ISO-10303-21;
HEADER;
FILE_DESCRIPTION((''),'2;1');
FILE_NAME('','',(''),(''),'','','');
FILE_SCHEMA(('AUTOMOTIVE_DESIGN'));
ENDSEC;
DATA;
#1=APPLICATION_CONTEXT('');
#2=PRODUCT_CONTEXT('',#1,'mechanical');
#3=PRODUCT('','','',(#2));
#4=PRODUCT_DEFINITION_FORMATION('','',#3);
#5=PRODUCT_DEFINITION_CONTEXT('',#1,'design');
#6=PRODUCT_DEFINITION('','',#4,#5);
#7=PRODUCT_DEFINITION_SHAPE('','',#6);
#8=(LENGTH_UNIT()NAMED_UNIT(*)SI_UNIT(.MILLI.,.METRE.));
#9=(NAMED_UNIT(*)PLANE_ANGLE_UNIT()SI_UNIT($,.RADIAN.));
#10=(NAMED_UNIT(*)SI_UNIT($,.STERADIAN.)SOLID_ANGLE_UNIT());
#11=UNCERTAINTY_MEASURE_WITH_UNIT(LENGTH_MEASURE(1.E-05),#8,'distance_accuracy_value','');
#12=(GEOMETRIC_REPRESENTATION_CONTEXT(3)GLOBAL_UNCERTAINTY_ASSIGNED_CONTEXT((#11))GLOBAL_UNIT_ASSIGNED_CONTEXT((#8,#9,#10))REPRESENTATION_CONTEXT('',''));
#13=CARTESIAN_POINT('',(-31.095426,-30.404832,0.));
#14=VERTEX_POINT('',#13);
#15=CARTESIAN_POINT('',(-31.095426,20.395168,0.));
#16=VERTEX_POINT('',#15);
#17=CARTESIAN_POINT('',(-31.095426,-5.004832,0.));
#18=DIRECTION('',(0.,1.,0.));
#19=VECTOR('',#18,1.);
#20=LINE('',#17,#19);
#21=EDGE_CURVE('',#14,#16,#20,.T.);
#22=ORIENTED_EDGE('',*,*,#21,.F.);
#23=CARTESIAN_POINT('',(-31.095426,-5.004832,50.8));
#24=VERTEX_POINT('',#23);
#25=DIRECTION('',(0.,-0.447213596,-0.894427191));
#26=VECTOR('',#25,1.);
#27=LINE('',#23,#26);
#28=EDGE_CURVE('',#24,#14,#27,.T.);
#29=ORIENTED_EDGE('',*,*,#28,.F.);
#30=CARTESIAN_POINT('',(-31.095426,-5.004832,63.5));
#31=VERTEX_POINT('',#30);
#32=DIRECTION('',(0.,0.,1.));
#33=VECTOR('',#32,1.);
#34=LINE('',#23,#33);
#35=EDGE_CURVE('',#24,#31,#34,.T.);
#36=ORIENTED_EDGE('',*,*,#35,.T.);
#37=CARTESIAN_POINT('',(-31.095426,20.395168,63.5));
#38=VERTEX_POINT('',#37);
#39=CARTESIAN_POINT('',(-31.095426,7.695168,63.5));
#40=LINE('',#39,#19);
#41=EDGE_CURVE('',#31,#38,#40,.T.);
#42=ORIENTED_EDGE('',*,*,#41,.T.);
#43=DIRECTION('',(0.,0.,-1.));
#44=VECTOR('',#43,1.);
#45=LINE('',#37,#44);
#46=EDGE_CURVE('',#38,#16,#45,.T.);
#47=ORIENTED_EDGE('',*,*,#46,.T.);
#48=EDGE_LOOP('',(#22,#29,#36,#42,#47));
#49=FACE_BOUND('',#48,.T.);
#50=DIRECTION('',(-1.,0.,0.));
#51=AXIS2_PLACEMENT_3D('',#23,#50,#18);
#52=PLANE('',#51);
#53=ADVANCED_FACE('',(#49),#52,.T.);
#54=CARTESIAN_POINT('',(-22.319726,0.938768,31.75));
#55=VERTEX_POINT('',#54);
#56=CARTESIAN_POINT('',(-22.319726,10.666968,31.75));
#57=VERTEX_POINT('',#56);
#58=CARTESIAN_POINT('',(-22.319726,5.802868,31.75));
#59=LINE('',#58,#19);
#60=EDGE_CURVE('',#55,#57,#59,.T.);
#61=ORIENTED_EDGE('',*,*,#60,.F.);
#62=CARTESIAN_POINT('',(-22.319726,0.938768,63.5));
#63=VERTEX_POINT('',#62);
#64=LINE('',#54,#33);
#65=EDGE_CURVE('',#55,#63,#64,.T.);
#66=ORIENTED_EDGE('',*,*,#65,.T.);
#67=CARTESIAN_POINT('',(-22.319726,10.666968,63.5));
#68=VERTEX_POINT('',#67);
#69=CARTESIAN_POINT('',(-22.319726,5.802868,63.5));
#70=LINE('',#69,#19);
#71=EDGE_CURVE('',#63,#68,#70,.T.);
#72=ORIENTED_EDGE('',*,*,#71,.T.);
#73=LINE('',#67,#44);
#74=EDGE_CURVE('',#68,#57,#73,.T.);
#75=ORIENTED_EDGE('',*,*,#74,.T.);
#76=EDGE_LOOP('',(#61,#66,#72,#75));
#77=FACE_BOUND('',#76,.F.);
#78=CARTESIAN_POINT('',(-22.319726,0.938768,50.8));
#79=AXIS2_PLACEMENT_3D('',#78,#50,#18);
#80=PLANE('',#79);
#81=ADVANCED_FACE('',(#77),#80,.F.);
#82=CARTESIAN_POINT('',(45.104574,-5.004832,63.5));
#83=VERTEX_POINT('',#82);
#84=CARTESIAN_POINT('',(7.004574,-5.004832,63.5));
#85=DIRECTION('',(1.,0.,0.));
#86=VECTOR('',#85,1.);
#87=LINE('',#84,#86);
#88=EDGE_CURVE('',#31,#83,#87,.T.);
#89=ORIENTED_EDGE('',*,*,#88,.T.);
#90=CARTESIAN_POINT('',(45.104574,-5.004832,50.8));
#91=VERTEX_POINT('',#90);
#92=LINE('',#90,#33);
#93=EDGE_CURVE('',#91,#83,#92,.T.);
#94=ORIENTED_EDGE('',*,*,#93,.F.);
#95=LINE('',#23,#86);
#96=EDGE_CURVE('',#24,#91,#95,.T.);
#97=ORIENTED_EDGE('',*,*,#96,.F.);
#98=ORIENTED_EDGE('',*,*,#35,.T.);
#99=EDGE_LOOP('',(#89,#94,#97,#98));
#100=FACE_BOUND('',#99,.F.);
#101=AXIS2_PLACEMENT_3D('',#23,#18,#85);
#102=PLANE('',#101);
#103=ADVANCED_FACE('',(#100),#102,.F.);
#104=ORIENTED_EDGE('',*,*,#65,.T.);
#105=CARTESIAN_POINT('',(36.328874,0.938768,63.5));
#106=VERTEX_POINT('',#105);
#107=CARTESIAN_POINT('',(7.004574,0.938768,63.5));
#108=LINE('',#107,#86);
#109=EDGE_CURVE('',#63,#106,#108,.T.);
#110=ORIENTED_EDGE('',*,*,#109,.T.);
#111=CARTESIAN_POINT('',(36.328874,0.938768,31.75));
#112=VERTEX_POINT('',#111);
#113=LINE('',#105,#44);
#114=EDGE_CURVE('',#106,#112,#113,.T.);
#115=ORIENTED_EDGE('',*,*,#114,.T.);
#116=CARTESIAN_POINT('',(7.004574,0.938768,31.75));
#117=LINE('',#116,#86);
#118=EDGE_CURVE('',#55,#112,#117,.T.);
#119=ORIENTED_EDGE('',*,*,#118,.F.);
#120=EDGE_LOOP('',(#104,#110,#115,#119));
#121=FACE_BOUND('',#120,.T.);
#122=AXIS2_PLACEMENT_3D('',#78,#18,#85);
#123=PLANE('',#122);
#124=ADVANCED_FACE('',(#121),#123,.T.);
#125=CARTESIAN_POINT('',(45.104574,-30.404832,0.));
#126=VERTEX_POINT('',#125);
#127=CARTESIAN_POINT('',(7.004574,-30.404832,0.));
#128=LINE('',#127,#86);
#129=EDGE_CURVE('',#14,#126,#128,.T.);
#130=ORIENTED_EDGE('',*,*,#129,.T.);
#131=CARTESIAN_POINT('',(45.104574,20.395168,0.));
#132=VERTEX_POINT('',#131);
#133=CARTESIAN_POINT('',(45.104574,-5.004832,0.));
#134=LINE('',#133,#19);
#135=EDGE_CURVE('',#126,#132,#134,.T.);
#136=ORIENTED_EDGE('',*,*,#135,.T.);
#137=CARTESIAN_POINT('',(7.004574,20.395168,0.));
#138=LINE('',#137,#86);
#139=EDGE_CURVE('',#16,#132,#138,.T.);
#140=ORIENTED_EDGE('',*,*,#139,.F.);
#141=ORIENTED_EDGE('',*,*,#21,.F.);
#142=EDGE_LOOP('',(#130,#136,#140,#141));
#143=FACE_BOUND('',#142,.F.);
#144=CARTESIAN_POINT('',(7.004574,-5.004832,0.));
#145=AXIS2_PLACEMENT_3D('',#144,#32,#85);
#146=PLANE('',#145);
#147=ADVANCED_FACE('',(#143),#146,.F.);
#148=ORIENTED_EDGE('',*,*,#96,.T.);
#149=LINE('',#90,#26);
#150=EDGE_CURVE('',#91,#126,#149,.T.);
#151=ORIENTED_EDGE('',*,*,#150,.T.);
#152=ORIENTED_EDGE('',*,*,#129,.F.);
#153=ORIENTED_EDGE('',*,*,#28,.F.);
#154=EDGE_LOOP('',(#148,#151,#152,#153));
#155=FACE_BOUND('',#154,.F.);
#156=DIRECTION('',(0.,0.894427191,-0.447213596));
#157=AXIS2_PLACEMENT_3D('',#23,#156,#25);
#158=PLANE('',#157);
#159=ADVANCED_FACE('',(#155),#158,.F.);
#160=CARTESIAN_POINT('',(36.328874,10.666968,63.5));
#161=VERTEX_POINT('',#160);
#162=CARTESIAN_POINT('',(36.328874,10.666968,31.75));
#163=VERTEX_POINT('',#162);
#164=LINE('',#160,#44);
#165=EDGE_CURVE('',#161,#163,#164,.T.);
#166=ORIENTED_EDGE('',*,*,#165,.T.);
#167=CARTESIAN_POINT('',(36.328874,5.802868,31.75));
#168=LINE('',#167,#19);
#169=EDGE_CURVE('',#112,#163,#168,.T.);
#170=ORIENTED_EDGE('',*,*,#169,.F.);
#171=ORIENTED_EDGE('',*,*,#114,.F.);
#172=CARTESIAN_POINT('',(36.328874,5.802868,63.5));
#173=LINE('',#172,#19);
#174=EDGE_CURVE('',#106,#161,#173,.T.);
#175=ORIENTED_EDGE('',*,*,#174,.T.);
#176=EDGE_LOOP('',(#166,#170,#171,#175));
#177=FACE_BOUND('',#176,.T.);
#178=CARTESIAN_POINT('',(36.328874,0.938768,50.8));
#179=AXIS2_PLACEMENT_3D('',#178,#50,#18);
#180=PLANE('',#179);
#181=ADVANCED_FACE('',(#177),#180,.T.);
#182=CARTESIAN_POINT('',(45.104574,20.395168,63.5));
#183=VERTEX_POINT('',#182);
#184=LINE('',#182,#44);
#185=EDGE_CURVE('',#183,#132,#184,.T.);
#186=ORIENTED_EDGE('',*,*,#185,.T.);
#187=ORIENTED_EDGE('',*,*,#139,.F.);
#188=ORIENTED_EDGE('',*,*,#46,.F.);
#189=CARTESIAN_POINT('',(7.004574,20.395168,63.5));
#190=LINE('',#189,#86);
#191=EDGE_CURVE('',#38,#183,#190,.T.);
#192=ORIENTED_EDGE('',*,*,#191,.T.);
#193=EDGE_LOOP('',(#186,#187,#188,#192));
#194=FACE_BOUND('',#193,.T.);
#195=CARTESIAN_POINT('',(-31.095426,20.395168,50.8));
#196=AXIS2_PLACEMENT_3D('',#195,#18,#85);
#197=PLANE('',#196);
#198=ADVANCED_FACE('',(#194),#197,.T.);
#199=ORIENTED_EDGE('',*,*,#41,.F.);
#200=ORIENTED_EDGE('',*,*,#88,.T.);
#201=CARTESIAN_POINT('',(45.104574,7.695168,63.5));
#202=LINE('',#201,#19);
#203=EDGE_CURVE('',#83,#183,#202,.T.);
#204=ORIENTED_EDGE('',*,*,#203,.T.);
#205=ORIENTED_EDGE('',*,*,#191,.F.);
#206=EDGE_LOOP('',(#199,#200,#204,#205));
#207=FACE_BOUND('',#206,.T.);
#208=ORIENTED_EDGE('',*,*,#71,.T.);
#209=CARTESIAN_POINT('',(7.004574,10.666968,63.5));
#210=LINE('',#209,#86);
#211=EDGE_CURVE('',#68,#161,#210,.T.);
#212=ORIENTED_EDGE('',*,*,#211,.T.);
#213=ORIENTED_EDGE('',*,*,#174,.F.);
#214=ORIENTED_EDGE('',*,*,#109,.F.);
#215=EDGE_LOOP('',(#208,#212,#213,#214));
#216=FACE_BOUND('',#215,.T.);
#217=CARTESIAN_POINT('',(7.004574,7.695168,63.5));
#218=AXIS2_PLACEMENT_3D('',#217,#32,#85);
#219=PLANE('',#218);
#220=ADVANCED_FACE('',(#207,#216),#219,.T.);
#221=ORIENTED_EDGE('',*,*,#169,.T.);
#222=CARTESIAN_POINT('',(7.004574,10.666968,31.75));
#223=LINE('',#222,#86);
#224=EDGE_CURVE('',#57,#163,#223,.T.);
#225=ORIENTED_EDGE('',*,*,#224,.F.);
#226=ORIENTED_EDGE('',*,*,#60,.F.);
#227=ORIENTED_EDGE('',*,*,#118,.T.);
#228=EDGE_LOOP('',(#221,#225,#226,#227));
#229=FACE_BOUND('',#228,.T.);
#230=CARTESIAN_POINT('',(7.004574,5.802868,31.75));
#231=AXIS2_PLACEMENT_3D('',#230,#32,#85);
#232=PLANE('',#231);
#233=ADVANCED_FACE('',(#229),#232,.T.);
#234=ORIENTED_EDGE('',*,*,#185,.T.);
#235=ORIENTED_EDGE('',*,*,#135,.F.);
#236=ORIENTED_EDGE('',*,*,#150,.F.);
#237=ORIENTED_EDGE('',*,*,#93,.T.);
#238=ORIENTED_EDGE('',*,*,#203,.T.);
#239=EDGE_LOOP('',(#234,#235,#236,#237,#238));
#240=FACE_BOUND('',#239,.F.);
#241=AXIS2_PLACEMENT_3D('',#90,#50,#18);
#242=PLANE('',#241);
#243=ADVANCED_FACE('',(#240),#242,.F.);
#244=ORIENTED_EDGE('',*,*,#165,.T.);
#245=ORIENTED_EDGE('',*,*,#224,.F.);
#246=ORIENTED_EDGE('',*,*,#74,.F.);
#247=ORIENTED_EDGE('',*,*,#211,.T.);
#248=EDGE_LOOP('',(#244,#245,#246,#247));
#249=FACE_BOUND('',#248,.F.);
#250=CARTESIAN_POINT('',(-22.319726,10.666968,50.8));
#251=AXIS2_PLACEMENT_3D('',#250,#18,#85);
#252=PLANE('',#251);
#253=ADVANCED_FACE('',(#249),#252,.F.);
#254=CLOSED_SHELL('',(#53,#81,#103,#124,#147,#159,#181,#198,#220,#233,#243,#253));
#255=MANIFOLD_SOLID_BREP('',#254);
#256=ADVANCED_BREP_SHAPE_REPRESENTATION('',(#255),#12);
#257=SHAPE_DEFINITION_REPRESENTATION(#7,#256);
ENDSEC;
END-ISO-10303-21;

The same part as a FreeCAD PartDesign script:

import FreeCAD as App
import Part
import Sketcher

V = App.Vector
Q = App.Units.Quantity


def add_polygon(sketch, points):
    """Adds a closed chain of lines whose ends are joined by coincident constraints."""
    first, n = sketch.GeometryCount, len(points)
    for a, b in zip(points, points[1:] + points[:1]):
        sketch.addGeometry(Part.LineSegment(App.Vector(*a, 0), App.Vector(*b, 0)), False)
    for i in range(n):
        sketch.addConstraint(Sketcher.Constraint("Coincident", first + i, 2, first + (i + 1) % n, 1))

doc = App.newDocument("Part")
body = doc.addObject("PartDesign::Body", "Body")

sketch1 = body.newObject("Sketcher::SketchObject", "Sketch")
sketch1.AttachmentSupport = (doc.getObject("XY_Plane"), [""])
sketch1.MapMode = "FlatFace"
add_polygon(sketch1, [(-31, 20), (-31, -30), (45, -30), (45, 20)])
sketch1.addConstraint(Sketcher.Constraint("Vertical", 0))
sketch1.addConstraint(Sketcher.Constraint("Horizontal", 1))
sketch1.addConstraint(Sketcher.Constraint("Vertical", 2))
sketch1.addConstraint(Sketcher.Constraint("Horizontal", 3))
sketch1.addConstraint(Sketcher.Constraint("DistanceX", 1, 1, 1, 2, Q("3 in")))
sketch1.addConstraint(Sketcher.Constraint("DistanceY", 0, 2, 0, 1, Q("2 in")))
sketch1.addConstraint(Sketcher.Constraint("DistanceY", 0, 2, -1, 1, Q("30.404832 mm")))
sketch1.addConstraint(Sketcher.Constraint("DistanceX", 0, 2, -1, 1, Q("31.095426 mm")))
pad1 = body.newObject("PartDesign::Pad", "Pad")
pad1.Profile = sketch1
pad1.Length = Q("2 in")

sketch2 = body.newObject("Sketcher::SketchObject", "Sketch001")
sketch2.AttachmentSupport = (doc.getObject("XY_Plane"), [""])
sketch2.MapMode = "FlatFace"
sketch2.AttachmentOffset = App.Placement(V(0, 0, 2 * 25.4), App.Rotation())
add_polygon(sketch2, [(-22, 11), (-22, 1), (36, 1), (36, 11)])
sketch2.addConstraint(Sketcher.Constraint("Vertical", 0))
sketch2.addConstraint(Sketcher.Constraint("Horizontal", 1))
sketch2.addConstraint(Sketcher.Constraint("Vertical", 2))
sketch2.addConstraint(Sketcher.Constraint("Horizontal", 3))
sketch2.addConstraint(Sketcher.Constraint("DistanceX", 1, 1, 1, 2, Q("2.309 in")))
sketch2.addConstraint(Sketcher.Constraint("DistanceY", 0, 2, 0, 1, Q("0.383 in")))
sketch2.addConstraint(Sketcher.Constraint("DistanceY", -1, 1, 0, 2, Q("0.938768 mm")))
sketch2.addConstraint(Sketcher.Constraint("DistanceX", 0, 2, -1, 1, Q("22.319726 mm")))
pocket1 = body.newObject("PartDesign::Pocket", "Pocket")
pocket1.Profile = sketch2
pocket1.Length = Q("0.75 in")

sketch3 = body.newObject("Sketcher::SketchObject", "Sketch002")
sketch3.AttachmentSupport = (doc.getObject("YZ_Plane"), [""])
sketch3.MapMode = "FlatFace"
sketch3.AttachmentOffset = App.Placement(V(0, 0, -31.095426), App.Rotation())
add_polygon(sketch3, [(-30, 51), (-5, 51), (-30, 0)])
sketch3.addConstraint(Sketcher.Constraint("Horizontal", 0))
sketch3.addConstraint(Sketcher.Constraint("Vertical", 2))
sketch3.addConstraint(Sketcher.Constraint("PointOnObject", 1, 2, -1))
sketch3.addConstraint(Sketcher.Constraint("DistanceX", 0, 1, 0, 2, Q("1 in")))
sketch3.addConstraint(Sketcher.Constraint("DistanceY", 2, 1, 2, 2, Q("2 in")))
sketch3.addConstraint(Sketcher.Constraint("DistanceX", 1, 2, -1, 1, Q("30.404832 mm")))
pocket2 = body.newObject("PartDesign::Pocket", "Pocket001")
pocket2.Profile = sketch3
pocket2.Length = Q("3 in")
pocket2.Reversed = True

sketch4 = body.newObject("Sketcher::SketchObject", "Sketch003")
sketch4.AttachmentSupport = (doc.getObject("XY_Plane"), [""])
sketch4.MapMode = "FlatFace"
sketch4.AttachmentOffset = App.Placement(V(0, 0, 2 * 25.4), App.Rotation())
add_polygon(sketch4, [(-31, 20), (-31, -5), (45, -5), (45, 20)])
add_polygon(sketch4, [(36, 1), (-22, 1), (-22, 11), (36, 11)])
sketch4.addConstraint(Sketcher.Constraint("Vertical", 0))
sketch4.addConstraint(Sketcher.Constraint("Horizontal", 1))
sketch4.addConstraint(Sketcher.Constraint("Vertical", 2))
sketch4.addConstraint(Sketcher.Constraint("Horizontal", 3))
sketch4.addConstraint(Sketcher.Constraint("Horizontal", 4))
sketch4.addConstraint(Sketcher.Constraint("Vertical", 5))
sketch4.addConstraint(Sketcher.Constraint("Horizontal", 6))
sketch4.addConstraint(Sketcher.Constraint("Vertical", 7))
sketch4.addConstraint(Sketcher.Constraint("DistanceX", 1, 1, 1, 2, Q("3 in")))
sketch4.addConstraint(Sketcher.Constraint("DistanceY", 0, 2, 0, 1, Q("1 in")))
sketch4.addConstraint(Sketcher.Constraint("DistanceX", 4, 2, 4, 1, Q("2.309 in")))
sketch4.addConstraint(Sketcher.Constraint("DistanceY", 5, 1, 5, 2, Q("0.383 in")))
sketch4.addConstraint(Sketcher.Constraint("DistanceY", 0, 2, 4, 2, Q("0.234 in")))
sketch4.addConstraint(Sketcher.Constraint("DistanceX", 0, 2, 4, 2, Q("0.3455 in")))
sketch4.addConstraint(Sketcher.Constraint("DistanceY", -1, 1, 2, 2, Q("20.395168 mm")))
sketch4.addConstraint(Sketcher.Constraint("DistanceX", 0, 2, -1, 1, Q("31.095426 mm")))
pad2 = body.newObject("PartDesign::Pad", "Pad001")
pad2.Profile = sketch4
pad2.Length = Q("0.5 in")

doc.recompute()
